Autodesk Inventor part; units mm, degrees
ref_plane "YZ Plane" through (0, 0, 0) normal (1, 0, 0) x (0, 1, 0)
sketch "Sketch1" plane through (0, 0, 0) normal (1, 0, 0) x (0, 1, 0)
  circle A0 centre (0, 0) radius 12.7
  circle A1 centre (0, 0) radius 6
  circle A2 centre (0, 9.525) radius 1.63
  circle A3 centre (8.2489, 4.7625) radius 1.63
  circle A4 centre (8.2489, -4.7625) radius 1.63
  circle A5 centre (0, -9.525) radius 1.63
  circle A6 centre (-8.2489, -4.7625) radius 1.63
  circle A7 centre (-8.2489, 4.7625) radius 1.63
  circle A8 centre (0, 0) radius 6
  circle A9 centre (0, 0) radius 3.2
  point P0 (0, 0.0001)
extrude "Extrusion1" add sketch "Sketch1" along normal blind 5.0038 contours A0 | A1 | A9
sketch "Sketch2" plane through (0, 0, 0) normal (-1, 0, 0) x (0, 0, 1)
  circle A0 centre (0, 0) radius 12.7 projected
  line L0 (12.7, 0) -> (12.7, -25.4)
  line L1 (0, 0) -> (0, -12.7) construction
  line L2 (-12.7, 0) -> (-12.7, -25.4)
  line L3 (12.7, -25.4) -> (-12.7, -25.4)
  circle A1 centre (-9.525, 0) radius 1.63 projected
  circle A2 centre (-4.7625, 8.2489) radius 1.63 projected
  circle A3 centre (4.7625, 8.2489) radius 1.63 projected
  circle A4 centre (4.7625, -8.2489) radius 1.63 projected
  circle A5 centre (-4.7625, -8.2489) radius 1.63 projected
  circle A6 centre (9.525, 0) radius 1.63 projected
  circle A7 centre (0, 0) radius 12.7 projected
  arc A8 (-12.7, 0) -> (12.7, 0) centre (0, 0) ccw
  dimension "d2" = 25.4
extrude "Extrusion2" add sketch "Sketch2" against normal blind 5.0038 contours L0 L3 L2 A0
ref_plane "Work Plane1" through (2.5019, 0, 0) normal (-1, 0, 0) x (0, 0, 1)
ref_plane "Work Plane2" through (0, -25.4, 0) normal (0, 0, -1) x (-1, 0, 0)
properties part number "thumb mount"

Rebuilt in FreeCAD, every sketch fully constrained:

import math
import FreeCAD as App
import Part
import Sketcher

V = App.Vector
Q = App.Units.Quantity

doc = App.newDocument("Part")
body = doc.addObject("PartDesign::Body", "Body")

sketch1 = body.newObject("Sketcher::SketchObject", "Sketch")
sketch1.AttachmentSupport = (doc.getObject("YZ_Plane"), [""])
sketch1.MapMode = "FlatFace"
sketch1.addGeometry([
    Part.Circle(V(0, 0, 0), V(0, 0, 1), 12.7),
    Part.Circle(V(0, -9.5, 0), V(0, 0, 1), 1.6),
    Part.Circle(V(-8.2, -4.8, 0), V(0, 0, 1), 1.6),
    Part.Circle(V(8.2, -4.8, 0), V(0, 0, 1), 1.6),
    Part.Circle(V(-8.2, 4.8, 0), V(0, 0, 1), 1.6),
    Part.Circle(V(0, 9.5, 0), V(0, 0, 1), 1.6),
    Part.Circle(V(8.2, 4.8, 0), V(0, 0, 1), 1.6),
], False)
sketch1.addConstraint([
    Sketcher.Constraint("Coincident", 0, 3, -1, 1),
    Sketcher.Constraint("Equal", 1, 2),
    Sketcher.Constraint("Equal", 2, 3),
    Sketcher.Constraint("Equal", 3, 4),
    Sketcher.Constraint("Equal", 4, 5),
    Sketcher.Constraint("Equal", 5, 6),
    Sketcher.Constraint("Symmetric", 3, 3, 4, 3, -1, 1),
    Sketcher.Constraint("Symmetric", 1, 3, 5, 3, -1, 1),
    Sketcher.Constraint("Symmetric", 2, 3, 6, 3, -1, 1),
    Sketcher.Constraint("Symmetric", 2, 3, 3, 3, -2),
    Sketcher.Constraint("PointOnObject", 1, 3, -2),
    Sketcher.Constraint("Diameter", 0, Q("1 in")),
    Sketcher.Constraint("Diameter", 1, 3.26),
    Sketcher.Constraint("DistanceY", 1, 3, 5, 3, Q("0.75 in")),
    Sketcher.Constraint("DistanceY", 2, 3, -1, 1, Q("0.1875 in")),
    Sketcher.Constraint("DistanceX", 2, 3, -1, 1, 8.249),
])
pad1 = body.newObject("PartDesign::Pad", "Pad")
pad1.Profile = sketch1
pad1.Length = Q("0.197 in")

sketch2 = body.newObject("Sketcher::SketchObject", "Sketch001")
sketch2.AttachmentSupport = (doc.getObject("YZ_Plane"), [""])
sketch2.MapMode = "FlatFace"
sketch2.addGeometry([
    Part.LineSegment(V(-25, 13, 0), V(0, 13, 0)),
    Part.ArcOfCircle(Part.Circle(V(0, 0, 0), V(0, 0, 1), 13), math.radians(90), math.radians(270)),
    Part.LineSegment(V(0, -13, 0), V(-25, -13, 0)),
    Part.LineSegment(V(-25, -13, 0), V(-25, 13, 0)),
], False)
sketch2.addConstraint([
    Sketcher.Constraint("Tangent", 0, 2, 1, 1),
    Sketcher.Constraint("Tangent", 1, 2, 2, 1),
    Sketcher.Constraint("Coincident", 2, 2, 3, 1),
    Sketcher.Constraint("Coincident", 3, 2, 0, 1),
    Sketcher.Constraint("Horizontal", 0),
    Sketcher.Constraint("Horizontal", 2),
    Sketcher.Constraint("Vertical", 3),
    Sketcher.Constraint("Coincident", 1, 3, -1, 1),
    Sketcher.Constraint("Equal", 2, 3),
    Sketcher.Constraint("Radius", 1, Q("0.5 in")),
])
pad2 = body.newObject("PartDesign::Pad", "Pad001")
pad2.Profile = sketch2
pad2.Length = Q("0.197 in")

doc.recompute()
